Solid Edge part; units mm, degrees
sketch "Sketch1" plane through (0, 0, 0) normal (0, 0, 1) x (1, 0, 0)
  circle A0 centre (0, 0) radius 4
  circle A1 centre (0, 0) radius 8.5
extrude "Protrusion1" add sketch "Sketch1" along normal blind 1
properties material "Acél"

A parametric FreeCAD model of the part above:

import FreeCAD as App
import Part
import Sketcher
Q = App.Units.Quantity

doc = App.newDocument("Part")
body = doc.addObject("PartDesign::Body", "Body")

# Sketch on XY plane
sketch1 = body.newObject("Sketcher::SketchObject", "Sketch")
sketch1.AttachmentSupport = (doc.getObject("XY_Plane"), [""])
sketch1.MapMode = "FlatFace"
sketch1.addGeometry([
    Part.Circle(App.Vector(0, 0, 0), App.Vector(0, 0, 1), 8.5),
    Part.Circle(App.Vector(0, 0, 0), App.Vector(0, 0, 1), 4),
], False)
sketch1.addConstraint([
    Sketcher.Constraint("Coincident", 0, 3, -1, 1),
    Sketcher.Constraint("Coincident", 1, 3, -1, 1),
    Sketcher.Constraint("Diameter", 0, Q("17 mm")),
    Sketcher.Constraint("Diameter", 1, Q("8 mm")),
])
pad1 = body.newObject("PartDesign::Pad", "Pad")
pad1.Profile = sketch1
pad1.Length = 1

doc.recompute()
